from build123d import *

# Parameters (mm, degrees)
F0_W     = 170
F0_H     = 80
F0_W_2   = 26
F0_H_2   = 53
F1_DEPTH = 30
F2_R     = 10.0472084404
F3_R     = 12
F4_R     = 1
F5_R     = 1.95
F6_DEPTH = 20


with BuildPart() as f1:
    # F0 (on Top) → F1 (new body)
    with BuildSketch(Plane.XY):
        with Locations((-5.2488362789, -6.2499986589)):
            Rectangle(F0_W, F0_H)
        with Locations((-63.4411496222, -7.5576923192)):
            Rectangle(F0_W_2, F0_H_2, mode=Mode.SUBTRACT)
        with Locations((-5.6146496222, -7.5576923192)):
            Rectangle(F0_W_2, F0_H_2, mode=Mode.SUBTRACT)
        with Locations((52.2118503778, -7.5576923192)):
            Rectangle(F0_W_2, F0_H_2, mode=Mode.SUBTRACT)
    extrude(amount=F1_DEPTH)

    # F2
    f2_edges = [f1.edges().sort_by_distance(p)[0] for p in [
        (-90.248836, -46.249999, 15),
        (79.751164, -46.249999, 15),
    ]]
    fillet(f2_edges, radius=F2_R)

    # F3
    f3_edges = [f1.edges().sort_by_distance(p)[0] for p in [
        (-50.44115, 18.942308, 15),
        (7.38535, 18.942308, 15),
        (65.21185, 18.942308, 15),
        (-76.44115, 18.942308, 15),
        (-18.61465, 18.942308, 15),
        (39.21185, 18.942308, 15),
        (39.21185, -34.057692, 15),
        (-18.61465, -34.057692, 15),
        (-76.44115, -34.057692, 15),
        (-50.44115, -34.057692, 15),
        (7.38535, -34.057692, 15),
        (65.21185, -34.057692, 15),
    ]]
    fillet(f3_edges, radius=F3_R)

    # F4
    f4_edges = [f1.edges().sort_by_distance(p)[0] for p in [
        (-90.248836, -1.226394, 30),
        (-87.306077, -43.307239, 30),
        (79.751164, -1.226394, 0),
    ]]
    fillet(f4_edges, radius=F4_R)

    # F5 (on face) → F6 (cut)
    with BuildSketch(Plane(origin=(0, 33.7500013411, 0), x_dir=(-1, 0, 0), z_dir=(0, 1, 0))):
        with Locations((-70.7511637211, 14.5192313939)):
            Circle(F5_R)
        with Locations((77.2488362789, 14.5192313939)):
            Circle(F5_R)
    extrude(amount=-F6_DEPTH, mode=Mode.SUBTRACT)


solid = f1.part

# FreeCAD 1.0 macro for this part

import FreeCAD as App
import Part
import Sketcher

V = App.Vector
Q = App.Units.Quantity


def edges_at(feature, points):
    """Names of the edges that pass closest to the given points."""
    edges = feature.Shape.Edges
    near = lambda p: min(range(len(edges)), key=lambda i: edges[i].distToShape(Part.Vertex(*p))[0])
    return sorted({f"Edge{near(p) + 1}" for p in points})

doc = App.newDocument("Part")
body = doc.addObject("PartDesign::Body", "Body")

sketch1 = body.newObject("Sketcher::SketchObject", "Sketch")
sketch1.AttachmentSupport = (doc.getObject("XY_Plane"), [""])
sketch1.MapMode = "FlatFace"
sketch1.addGeometry([
    Part.LineSegment(V(-90, 34, 0), V(-90, -46, 0)),
    Part.LineSegment(V(-90, -46, 0), V(80, -46, 0)),
    Part.LineSegment(V(80, -46, 0), V(80, 34, 0)),
    Part.LineSegment(V(80, 34, 0), V(-90, 34, 0)),
    Part.LineSegment(V(-50, -34, 0), V(-76, -34, 0)),
    Part.LineSegment(V(-76, -34, 0), V(-76, 19, 0)),
    Part.LineSegment(V(-76, 19, 0), V(-50, 19, 0)),
    Part.LineSegment(V(-50, 19, 0), V(-50, -34, 0)),
    Part.LineSegment(V(7, -34, 0), V(-19, -34, 0)),
    Part.LineSegment(V(-19, -34, 0), V(-19, 19, 0)),
    Part.LineSegment(V(-19, 19, 0), V(7, 19, 0)),
    Part.LineSegment(V(7, 19, 0), V(7, -34, 0)),
    Part.LineSegment(V(65, -34, 0), V(39, -34, 0)),
    Part.LineSegment(V(39, -34, 0), V(39, 19, 0)),
    Part.LineSegment(V(39, 19, 0), V(65, 19, 0)),
    Part.LineSegment(V(65, 19, 0), V(65, -34, 0)),
], False)
sketch1.addConstraint([
    Sketcher.Constraint("Coincident", 0, 2, 1, 1),
    Sketcher.Constraint("Coincident", 1, 2, 2, 1),
    Sketcher.Constraint("Coincident", 2, 2, 3, 1),
    Sketcher.Constraint("Coincident", 3, 2, 0, 1),
    Sketcher.Constraint("Coincident", 4, 2, 5, 1),
    Sketcher.Constraint("Coincident", 5, 2, 6, 1),
    Sketcher.Constraint("Coincident", 6, 2, 7, 1),
    Sketcher.Constraint("Coincident", 7, 2, 4, 1),
    Sketcher.Constraint("Coincident", 8, 2, 9, 1),
    Sketcher.Constraint("Coincident", 9, 2, 10, 1),
    Sketcher.Constraint("Coincident", 10, 2, 11, 1),
    Sketcher.Constraint("Coincident", 11, 2, 8, 1),
    Sketcher.Constraint("Coincident", 12, 2, 13, 1),
    Sketcher.Constraint("Coincident", 13, 2, 14, 1),
    Sketcher.Constraint("Coincident", 14, 2, 15, 1),
    Sketcher.Constraint("Coincident", 15, 2, 12, 1),
    Sketcher.Constraint("Vertical", 0),
    Sketcher.Constraint("Horizontal", 1),
    Sketcher.Constraint("Vertical", 2),
    Sketcher.Constraint("Horizontal", 3),
    Sketcher.Constraint("Horizontal", 4),
    Sketcher.Constraint("Vertical", 5),
    Sketcher.Constraint("Horizontal", 6),
    Sketcher.Constraint("Vertical", 7),
    Sketcher.Constraint("Horizontal", 8),
    Sketcher.Constraint("Vertical", 9),
    Sketcher.Constraint("Horizontal", 10),
    Sketcher.Constraint("Vertical", 11),
    Sketcher.Constraint("Horizontal", 12),
    Sketcher.Constraint("Vertical", 13),
    Sketcher.Constraint("Horizontal", 14),
    Sketcher.Constraint("Vertical", 15),
    Sketcher.Constraint("Horizontal", 7, 2, 8, 2),
    Sketcher.Constraint("Horizontal", 6, 2, 9, 2),
    Sketcher.Constraint("Horizontal", 11, 2, 12, 2),
    Sketcher.Constraint("Horizontal", 10, 2, 13, 2),
    Sketcher.Constraint("Equal", 6, 8),
    Sketcher.Constraint("Equal", 10, 12),
    Sketcher.Constraint("DistanceX", 1, 1, 1, 2, Q("170 mm")),
    Sketcher.Constraint("DistanceX", 4, 2, 4, 1, Q("26 mm")),
    Sketcher.Constraint("DistanceY", 0, 2, 0, 1, Q("80 mm")),
    Sketcher.Constraint("DistanceY", 5, 1, 5, 2, Q("53 mm")),
    Sketcher.Constraint("DistanceY", 0, 2, -1, 1, Q("46.249999 mm")),
    Sketcher.Constraint("DistanceX", 7, 2, 8, 2, Q("31.8265 mm")),
    Sketcher.Constraint("DistanceX", 11, 2, 12, 2, Q("31.8265 mm")),
    Sketcher.Constraint("DistanceX", 4, 2, -1, 1, Q("76.44115 mm")),
    Sketcher.Constraint("DistanceX", 0, 2, -1, 1, Q("90.248836 mm")),
    Sketcher.Constraint("DistanceY", 4, 2, -1, 1, Q("34.057692 mm")),
])
pad1 = body.newObject("PartDesign::Pad", "Pad")
pad1.Profile = sketch1
pad1.Length = 30
doc.recompute()

fillet = body.newObject("PartDesign::Fillet", "Fillet")
fillet.Base = (pad1, edges_at(pad1, [(-90.249, -46.25, 15), (79.751, -46.25, 15)]))
fillet.Radius = 10.047208
doc.recompute()

fillet2 = body.newObject("PartDesign::Fillet", "Fillet001")
fillet2.Base = (fillet, edges_at(fillet, [
    (-50.441, 18.942, 15),
    (7.385, 18.942, 15),
    (65.212, 18.942, 15),
    (-76.441, 18.942, 15),
    (-18.615, 18.942, 15),
    (39.212, 18.942, 15),
    (39.212, -34.058, 15),
    (-18.615, -34.058, 15),
    (-76.441, -34.058, 15),
    (-50.441, -34.058, 15),
    (7.385, -34.058, 15),
    (65.212, -34.058, 15),
]))
fillet2.Radius = 12
doc.recompute()

fillet3 = body.newObject("PartDesign::Fillet", "Fillet002")
fillet3.Base = (fillet2, edges_at(fillet2, [(-90.249, -1.226, 30), (-87.306, -43.307, 30), (79.751, -1.226, 0)]))
fillet3.Radius = 1

sketch2 = body.newObject("Sketcher::SketchObject", "Sketch001")
sketch2.AttachmentSupport = (doc.getObject("XZ_Plane"), [""])
sketch2.MapMode = "FlatFace"
sketch2.AttachmentOffset = App.Placement(V(0, 0, -33.750001), App.Rotation())
sketch2.addGeometry([
    Part.Circle(V(70.8, 14.5, 0), V(0, 0, 1), 1.9),
    Part.Circle(V(-77.2, 14.5, 0), V(0, 0, 1), 1.9),
], False)
sketch2.addConstraint([
    Sketcher.Constraint("Equal", 0, 1),
    Sketcher.Constraint("Horizontal", 0, 3, 1, 3),
    Sketcher.Constraint("Diameter", 0, Q("3.9 mm")),
    Sketcher.Constraint("DistanceX", 1, 3, 0, 3, Q("148 mm")),
    Sketcher.Constraint("DistanceY", -1, 1, 0, 3, Q("14.519231 mm")),
    Sketcher.Constraint("DistanceX", -1, 1, 0, 3, Q("70.751164 mm")),
])
pocket1 = body.newObject("PartDesign::Pocket", "Pocket")
pocket1.Profile = sketch2
pocket1.Length = 20
pocket1.Reversed = True

doc.recompute()
